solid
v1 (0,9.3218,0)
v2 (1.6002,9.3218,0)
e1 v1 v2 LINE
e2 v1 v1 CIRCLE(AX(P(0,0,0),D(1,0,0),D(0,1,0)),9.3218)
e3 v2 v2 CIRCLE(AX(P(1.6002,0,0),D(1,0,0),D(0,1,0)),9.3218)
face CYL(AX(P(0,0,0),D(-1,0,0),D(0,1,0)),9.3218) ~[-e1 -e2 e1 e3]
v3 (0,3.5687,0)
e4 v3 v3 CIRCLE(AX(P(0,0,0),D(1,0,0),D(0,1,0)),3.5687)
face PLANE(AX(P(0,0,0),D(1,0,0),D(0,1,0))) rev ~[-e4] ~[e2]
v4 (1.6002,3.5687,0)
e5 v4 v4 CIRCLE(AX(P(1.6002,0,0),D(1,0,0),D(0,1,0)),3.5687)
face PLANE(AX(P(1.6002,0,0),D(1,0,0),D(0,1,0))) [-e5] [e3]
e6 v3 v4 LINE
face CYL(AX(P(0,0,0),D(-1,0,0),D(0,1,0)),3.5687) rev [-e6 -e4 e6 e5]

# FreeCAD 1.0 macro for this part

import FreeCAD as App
import Part
import Sketcher

V = App.Vector
Q = App.Units.Quantity

doc = App.newDocument("Part")
body = doc.addObject("PartDesign::Body", "Body")

# Sketch on YZ plane
sketch1 = doc.addObject("Sketcher::SketchObject", "Sketch")
body.addObject(sketch1)
sketch1.AttachmentSupport = (doc.YZ_Plane, [""])
sketch1.MapMode = "FlatFace"
sketch1.addGeometry([
    Part.Circle(V(0, 0, 0), V(0, 0, 1), 9.3218),
    Part.Circle(V(0, 0, 0), V(0, 0, 1), 3.5687),
], False)
sketch1.addConstraint([
    Sketcher.Constraint("Coincident", 0, 3, -1, 1),
    Sketcher.Constraint("Coincident", 1, 3, -1, 1),
    Sketcher.Constraint("Diameter", 0, Q("0.734 in")),
    Sketcher.Constraint("Diameter", 1, Q("0.281 in")),
])
pad1 = doc.addObject("PartDesign::Pad", "Pad")
body.addObject(pad1)
pad1.Profile = sketch1
pad1.Length = Q("0.063 in")

doc.recompute()
